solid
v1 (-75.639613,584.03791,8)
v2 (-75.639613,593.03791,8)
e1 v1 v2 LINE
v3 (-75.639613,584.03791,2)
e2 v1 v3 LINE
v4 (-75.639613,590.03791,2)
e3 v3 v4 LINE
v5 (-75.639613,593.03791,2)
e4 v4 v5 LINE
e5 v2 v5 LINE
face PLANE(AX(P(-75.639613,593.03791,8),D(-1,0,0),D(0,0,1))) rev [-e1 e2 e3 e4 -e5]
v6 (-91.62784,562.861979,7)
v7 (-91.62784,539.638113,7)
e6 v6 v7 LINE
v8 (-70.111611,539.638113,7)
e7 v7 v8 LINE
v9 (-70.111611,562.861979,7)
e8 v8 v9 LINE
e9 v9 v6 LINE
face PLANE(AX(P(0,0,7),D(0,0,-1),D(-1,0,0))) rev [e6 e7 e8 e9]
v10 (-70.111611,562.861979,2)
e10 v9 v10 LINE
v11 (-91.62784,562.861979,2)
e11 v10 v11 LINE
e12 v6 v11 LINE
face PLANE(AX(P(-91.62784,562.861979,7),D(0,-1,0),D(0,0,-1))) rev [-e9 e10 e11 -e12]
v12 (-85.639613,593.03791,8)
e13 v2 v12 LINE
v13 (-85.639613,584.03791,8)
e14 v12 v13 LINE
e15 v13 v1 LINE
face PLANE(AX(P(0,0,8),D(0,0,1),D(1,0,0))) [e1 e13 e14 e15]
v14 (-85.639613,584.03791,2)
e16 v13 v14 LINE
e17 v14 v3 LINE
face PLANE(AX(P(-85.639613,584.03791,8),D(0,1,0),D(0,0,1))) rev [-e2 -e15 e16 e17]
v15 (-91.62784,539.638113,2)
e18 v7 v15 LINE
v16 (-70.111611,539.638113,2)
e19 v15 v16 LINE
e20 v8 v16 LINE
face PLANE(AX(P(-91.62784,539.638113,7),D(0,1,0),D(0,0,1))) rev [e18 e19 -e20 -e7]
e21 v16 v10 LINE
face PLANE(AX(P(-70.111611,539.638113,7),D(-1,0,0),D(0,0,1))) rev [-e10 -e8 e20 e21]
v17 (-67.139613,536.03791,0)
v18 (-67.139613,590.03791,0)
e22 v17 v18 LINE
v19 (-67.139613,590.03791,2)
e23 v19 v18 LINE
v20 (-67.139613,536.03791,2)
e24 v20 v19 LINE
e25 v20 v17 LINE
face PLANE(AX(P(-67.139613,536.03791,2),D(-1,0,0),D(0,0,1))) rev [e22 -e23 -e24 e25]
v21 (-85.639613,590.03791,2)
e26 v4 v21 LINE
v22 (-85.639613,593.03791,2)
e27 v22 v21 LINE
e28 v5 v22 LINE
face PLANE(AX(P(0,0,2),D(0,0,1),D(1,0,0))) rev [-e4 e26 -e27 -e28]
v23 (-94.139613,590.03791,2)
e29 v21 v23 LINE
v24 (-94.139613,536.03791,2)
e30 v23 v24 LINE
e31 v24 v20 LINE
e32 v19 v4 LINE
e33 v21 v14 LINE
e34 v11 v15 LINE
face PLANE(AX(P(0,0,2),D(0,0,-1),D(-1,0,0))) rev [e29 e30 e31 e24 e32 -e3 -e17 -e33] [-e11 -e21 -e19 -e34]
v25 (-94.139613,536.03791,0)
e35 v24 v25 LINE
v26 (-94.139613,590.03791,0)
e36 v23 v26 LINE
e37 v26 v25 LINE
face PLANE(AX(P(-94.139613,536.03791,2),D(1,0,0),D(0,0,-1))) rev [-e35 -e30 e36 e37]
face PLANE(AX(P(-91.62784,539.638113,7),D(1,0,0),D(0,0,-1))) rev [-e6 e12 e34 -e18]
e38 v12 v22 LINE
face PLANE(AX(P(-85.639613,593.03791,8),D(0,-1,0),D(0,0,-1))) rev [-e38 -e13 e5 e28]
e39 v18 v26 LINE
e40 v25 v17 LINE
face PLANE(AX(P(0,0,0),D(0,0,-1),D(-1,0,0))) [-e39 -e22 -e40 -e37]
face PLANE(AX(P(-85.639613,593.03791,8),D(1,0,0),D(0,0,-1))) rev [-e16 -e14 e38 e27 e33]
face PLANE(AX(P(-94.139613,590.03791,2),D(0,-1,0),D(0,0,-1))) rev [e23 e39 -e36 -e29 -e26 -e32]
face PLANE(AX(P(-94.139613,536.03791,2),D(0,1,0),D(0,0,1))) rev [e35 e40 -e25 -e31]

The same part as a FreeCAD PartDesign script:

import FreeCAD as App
import Part
import Sketcher

V = App.Vector

doc = App.newDocument("Part")
params = doc.addObject("Spreadsheet::Sheet", "Params")
for row, (alias, value) in enumerate([
    ("sketch1_width", "27 mm"),
    ("sketch1_height", "54 mm"),
    ("pad1_length", "2 mm"),
    ("pad2_length", "5 mm"),
    ("sketch3_width", "10 mm"),
    ("sketch3_height", "9 mm"),
    ("pad3_length", "6 mm"),
], start=1):
    params.set(f"A{row}", alias)
    params.set(f"B{row}", "=" + value)
    params.setAlias(f"B{row}", alias)

body = doc.addObject("PartDesign::Body", "Body")

sketch1 = doc.addObject("Sketcher::SketchObject", "Sketch")
body.addObject(sketch1)
sketch1.AttachmentSupport = (doc.XY_Plane, [""])
sketch1.MapMode = "FlatFace"
sketch1.addGeometry(Part.LineSegment(V(-94, 590, 0), V(-94, 536, 0)), False)
sketch1.addGeometry(Part.LineSegment(V(-94, 536, 0), V(-67, 536, 0)), False)
sketch1.addGeometry(Part.LineSegment(V(-67, 536, 0), V(-67, 590, 0)), False)
sketch1.addGeometry(Part.LineSegment(V(-67, 590, 0), V(-94, 590, 0)), False)
sketch1.addConstraint(Sketcher.Constraint("Coincident", 0, 2, 1, 1))
sketch1.addConstraint(Sketcher.Constraint("Coincident", 1, 2, 2, 1))
sketch1.addConstraint(Sketcher.Constraint("Coincident", 2, 2, 3, 1))
sketch1.addConstraint(Sketcher.Constraint("Coincident", 3, 2, 0, 1))
sketch1.addConstraint(Sketcher.Constraint("Vertical", 0))
sketch1.addConstraint(Sketcher.Constraint("Horizontal", 1))
sketch1.addConstraint(Sketcher.Constraint("Vertical", 2))
sketch1.addConstraint(Sketcher.Constraint("Horizontal", 3))
sketch1.addConstraint(Sketcher.Constraint("DistanceX", 1, 1, 1, 2, 27.0))
sketch1.addConstraint(Sketcher.Constraint("DistanceY", 0, 2, 0, 1, 54.0))
sketch1.addConstraint(Sketcher.Constraint("DistanceY", -1, 1, 0, 2, 536.03791))
sketch1.addConstraint(Sketcher.Constraint("DistanceX", 0, 2, -1, 1, 94.139613))
sketch1.setExpression("Constraints[8]", "Params.sketch1_width")
sketch1.setExpression("Constraints[9]", "Params.sketch1_height")
pad1 = doc.addObject("PartDesign::Pad", "Pad")
body.addObject(pad1)
pad1.Profile = sketch1
pad1.setExpression("Length", "Params.pad1_length")

sketch2 = doc.addObject("Sketcher::SketchObject", "Sketch001")
body.addObject(sketch2)
sketch2.AttachmentSupport = (doc.XY_Plane, [""])
sketch2.MapMode = "FlatFace"
sketch2.AttachmentOffset = App.Placement(V(0, 0, 2), App.Rotation())
sketch2.addGeometry(Part.LineSegment(V(-92, 563, 0), V(-92, 540, 0)), False)
sketch2.addGeometry(Part.LineSegment(V(-92, 540, 0), V(-70, 540, 0)), False)
sketch2.addGeometry(Part.LineSegment(V(-70, 540, 0), V(-70, 563, 0)), False)
sketch2.addGeometry(Part.LineSegment(V(-70, 563, 0), V(-92, 563, 0)), False)
sketch2.addConstraint(Sketcher.Constraint("Coincident", 0, 2, 1, 1))
sketch2.addConstraint(Sketcher.Constraint("Coincident", 1, 2, 2, 1))
sketch2.addConstraint(Sketcher.Constraint("Coincident", 2, 2, 3, 1))
sketch2.addConstraint(Sketcher.Constraint("Coincident", 3, 2, 0, 1))
sketch2.addConstraint(Sketcher.Constraint("Vertical", 0))
sketch2.addConstraint(Sketcher.Constraint("Horizontal", 1))
sketch2.addConstraint(Sketcher.Constraint("Vertical", 2))
sketch2.addConstraint(Sketcher.Constraint("Horizontal", 3))
sketch2.addConstraint(Sketcher.Constraint("DistanceX", 1, 1, 1, 2, 21.516229))
sketch2.addConstraint(Sketcher.Constraint("DistanceY", 0, 2, 0, 1, 23.223866))
sketch2.addConstraint(Sketcher.Constraint("DistanceX", 0, 2, -1, 1, 91.62784))
sketch2.addConstraint(Sketcher.Constraint("DistanceY", -1, 1, 2, 2, 562.861979))
pad2 = doc.addObject("PartDesign::Pad", "Pad001")
body.addObject(pad2)
pad2.Profile = sketch2
pad2.setExpression("Length", "Params.pad2_length")

sketch3 = doc.addObject("Sketcher::SketchObject", "Sketch002")
body.addObject(sketch3)
sketch3.AttachmentSupport = (doc.XY_Plane, [""])
sketch3.MapMode = "FlatFace"
sketch3.AttachmentOffset = App.Placement(V(0, 0, 2), App.Rotation())
sketch3.addGeometry(Part.LineSegment(V(-86, 593, 0), V(-86, 584, 0)), False)
sketch3.addGeometry(Part.LineSegment(V(-86, 584, 0), V(-76, 584, 0)), False)
sketch3.addGeometry(Part.LineSegment(V(-76, 584, 0), V(-76, 593, 0)), False)
sketch3.addGeometry(Part.LineSegment(V(-76, 593, 0), V(-86, 593, 0)), False)
sketch3.addConstraint(Sketcher.Constraint("Coincident", 0, 2, 1, 1))
sketch3.addConstraint(Sketcher.Constraint("Coincident", 1, 2, 2, 1))
sketch3.addConstraint(Sketcher.Constraint("Coincident", 2, 2, 3, 1))
sketch3.addConstraint(Sketcher.Constraint("Coincident", 3, 2, 0, 1))
sketch3.addConstraint(Sketcher.Constraint("Vertical", 0))
sketch3.addConstraint(Sketcher.Constraint("Horizontal", 1))
sketch3.addConstraint(Sketcher.Constraint("Vertical", 2))
sketch3.addConstraint(Sketcher.Constraint("Horizontal", 3))
sketch3.addConstraint(Sketcher.Constraint("DistanceX", 1, 1, 1, 2, 10.0))
sketch3.addConstraint(Sketcher.Constraint("DistanceY", 0, 2, 0, 1, 9.0))
sketch3.addConstraint(Sketcher.Constraint("DistanceY", -1, 1, 0, 2, 584.03791))
sketch3.addConstraint(Sketcher.Constraint("DistanceX", 0, 2, -1, 1, 85.639613))
sketch3.setExpression("Constraints[8]", "Params.sketch3_width")
sketch3.setExpression("Constraints[9]", "Params.sketch3_height")
pad3 = doc.addObject("PartDesign::Pad", "Pad002")
body.addObject(pad3)
pad3.Profile = sketch3
pad3.setExpression("Length", "Params.pad3_length")

doc.recompute()
